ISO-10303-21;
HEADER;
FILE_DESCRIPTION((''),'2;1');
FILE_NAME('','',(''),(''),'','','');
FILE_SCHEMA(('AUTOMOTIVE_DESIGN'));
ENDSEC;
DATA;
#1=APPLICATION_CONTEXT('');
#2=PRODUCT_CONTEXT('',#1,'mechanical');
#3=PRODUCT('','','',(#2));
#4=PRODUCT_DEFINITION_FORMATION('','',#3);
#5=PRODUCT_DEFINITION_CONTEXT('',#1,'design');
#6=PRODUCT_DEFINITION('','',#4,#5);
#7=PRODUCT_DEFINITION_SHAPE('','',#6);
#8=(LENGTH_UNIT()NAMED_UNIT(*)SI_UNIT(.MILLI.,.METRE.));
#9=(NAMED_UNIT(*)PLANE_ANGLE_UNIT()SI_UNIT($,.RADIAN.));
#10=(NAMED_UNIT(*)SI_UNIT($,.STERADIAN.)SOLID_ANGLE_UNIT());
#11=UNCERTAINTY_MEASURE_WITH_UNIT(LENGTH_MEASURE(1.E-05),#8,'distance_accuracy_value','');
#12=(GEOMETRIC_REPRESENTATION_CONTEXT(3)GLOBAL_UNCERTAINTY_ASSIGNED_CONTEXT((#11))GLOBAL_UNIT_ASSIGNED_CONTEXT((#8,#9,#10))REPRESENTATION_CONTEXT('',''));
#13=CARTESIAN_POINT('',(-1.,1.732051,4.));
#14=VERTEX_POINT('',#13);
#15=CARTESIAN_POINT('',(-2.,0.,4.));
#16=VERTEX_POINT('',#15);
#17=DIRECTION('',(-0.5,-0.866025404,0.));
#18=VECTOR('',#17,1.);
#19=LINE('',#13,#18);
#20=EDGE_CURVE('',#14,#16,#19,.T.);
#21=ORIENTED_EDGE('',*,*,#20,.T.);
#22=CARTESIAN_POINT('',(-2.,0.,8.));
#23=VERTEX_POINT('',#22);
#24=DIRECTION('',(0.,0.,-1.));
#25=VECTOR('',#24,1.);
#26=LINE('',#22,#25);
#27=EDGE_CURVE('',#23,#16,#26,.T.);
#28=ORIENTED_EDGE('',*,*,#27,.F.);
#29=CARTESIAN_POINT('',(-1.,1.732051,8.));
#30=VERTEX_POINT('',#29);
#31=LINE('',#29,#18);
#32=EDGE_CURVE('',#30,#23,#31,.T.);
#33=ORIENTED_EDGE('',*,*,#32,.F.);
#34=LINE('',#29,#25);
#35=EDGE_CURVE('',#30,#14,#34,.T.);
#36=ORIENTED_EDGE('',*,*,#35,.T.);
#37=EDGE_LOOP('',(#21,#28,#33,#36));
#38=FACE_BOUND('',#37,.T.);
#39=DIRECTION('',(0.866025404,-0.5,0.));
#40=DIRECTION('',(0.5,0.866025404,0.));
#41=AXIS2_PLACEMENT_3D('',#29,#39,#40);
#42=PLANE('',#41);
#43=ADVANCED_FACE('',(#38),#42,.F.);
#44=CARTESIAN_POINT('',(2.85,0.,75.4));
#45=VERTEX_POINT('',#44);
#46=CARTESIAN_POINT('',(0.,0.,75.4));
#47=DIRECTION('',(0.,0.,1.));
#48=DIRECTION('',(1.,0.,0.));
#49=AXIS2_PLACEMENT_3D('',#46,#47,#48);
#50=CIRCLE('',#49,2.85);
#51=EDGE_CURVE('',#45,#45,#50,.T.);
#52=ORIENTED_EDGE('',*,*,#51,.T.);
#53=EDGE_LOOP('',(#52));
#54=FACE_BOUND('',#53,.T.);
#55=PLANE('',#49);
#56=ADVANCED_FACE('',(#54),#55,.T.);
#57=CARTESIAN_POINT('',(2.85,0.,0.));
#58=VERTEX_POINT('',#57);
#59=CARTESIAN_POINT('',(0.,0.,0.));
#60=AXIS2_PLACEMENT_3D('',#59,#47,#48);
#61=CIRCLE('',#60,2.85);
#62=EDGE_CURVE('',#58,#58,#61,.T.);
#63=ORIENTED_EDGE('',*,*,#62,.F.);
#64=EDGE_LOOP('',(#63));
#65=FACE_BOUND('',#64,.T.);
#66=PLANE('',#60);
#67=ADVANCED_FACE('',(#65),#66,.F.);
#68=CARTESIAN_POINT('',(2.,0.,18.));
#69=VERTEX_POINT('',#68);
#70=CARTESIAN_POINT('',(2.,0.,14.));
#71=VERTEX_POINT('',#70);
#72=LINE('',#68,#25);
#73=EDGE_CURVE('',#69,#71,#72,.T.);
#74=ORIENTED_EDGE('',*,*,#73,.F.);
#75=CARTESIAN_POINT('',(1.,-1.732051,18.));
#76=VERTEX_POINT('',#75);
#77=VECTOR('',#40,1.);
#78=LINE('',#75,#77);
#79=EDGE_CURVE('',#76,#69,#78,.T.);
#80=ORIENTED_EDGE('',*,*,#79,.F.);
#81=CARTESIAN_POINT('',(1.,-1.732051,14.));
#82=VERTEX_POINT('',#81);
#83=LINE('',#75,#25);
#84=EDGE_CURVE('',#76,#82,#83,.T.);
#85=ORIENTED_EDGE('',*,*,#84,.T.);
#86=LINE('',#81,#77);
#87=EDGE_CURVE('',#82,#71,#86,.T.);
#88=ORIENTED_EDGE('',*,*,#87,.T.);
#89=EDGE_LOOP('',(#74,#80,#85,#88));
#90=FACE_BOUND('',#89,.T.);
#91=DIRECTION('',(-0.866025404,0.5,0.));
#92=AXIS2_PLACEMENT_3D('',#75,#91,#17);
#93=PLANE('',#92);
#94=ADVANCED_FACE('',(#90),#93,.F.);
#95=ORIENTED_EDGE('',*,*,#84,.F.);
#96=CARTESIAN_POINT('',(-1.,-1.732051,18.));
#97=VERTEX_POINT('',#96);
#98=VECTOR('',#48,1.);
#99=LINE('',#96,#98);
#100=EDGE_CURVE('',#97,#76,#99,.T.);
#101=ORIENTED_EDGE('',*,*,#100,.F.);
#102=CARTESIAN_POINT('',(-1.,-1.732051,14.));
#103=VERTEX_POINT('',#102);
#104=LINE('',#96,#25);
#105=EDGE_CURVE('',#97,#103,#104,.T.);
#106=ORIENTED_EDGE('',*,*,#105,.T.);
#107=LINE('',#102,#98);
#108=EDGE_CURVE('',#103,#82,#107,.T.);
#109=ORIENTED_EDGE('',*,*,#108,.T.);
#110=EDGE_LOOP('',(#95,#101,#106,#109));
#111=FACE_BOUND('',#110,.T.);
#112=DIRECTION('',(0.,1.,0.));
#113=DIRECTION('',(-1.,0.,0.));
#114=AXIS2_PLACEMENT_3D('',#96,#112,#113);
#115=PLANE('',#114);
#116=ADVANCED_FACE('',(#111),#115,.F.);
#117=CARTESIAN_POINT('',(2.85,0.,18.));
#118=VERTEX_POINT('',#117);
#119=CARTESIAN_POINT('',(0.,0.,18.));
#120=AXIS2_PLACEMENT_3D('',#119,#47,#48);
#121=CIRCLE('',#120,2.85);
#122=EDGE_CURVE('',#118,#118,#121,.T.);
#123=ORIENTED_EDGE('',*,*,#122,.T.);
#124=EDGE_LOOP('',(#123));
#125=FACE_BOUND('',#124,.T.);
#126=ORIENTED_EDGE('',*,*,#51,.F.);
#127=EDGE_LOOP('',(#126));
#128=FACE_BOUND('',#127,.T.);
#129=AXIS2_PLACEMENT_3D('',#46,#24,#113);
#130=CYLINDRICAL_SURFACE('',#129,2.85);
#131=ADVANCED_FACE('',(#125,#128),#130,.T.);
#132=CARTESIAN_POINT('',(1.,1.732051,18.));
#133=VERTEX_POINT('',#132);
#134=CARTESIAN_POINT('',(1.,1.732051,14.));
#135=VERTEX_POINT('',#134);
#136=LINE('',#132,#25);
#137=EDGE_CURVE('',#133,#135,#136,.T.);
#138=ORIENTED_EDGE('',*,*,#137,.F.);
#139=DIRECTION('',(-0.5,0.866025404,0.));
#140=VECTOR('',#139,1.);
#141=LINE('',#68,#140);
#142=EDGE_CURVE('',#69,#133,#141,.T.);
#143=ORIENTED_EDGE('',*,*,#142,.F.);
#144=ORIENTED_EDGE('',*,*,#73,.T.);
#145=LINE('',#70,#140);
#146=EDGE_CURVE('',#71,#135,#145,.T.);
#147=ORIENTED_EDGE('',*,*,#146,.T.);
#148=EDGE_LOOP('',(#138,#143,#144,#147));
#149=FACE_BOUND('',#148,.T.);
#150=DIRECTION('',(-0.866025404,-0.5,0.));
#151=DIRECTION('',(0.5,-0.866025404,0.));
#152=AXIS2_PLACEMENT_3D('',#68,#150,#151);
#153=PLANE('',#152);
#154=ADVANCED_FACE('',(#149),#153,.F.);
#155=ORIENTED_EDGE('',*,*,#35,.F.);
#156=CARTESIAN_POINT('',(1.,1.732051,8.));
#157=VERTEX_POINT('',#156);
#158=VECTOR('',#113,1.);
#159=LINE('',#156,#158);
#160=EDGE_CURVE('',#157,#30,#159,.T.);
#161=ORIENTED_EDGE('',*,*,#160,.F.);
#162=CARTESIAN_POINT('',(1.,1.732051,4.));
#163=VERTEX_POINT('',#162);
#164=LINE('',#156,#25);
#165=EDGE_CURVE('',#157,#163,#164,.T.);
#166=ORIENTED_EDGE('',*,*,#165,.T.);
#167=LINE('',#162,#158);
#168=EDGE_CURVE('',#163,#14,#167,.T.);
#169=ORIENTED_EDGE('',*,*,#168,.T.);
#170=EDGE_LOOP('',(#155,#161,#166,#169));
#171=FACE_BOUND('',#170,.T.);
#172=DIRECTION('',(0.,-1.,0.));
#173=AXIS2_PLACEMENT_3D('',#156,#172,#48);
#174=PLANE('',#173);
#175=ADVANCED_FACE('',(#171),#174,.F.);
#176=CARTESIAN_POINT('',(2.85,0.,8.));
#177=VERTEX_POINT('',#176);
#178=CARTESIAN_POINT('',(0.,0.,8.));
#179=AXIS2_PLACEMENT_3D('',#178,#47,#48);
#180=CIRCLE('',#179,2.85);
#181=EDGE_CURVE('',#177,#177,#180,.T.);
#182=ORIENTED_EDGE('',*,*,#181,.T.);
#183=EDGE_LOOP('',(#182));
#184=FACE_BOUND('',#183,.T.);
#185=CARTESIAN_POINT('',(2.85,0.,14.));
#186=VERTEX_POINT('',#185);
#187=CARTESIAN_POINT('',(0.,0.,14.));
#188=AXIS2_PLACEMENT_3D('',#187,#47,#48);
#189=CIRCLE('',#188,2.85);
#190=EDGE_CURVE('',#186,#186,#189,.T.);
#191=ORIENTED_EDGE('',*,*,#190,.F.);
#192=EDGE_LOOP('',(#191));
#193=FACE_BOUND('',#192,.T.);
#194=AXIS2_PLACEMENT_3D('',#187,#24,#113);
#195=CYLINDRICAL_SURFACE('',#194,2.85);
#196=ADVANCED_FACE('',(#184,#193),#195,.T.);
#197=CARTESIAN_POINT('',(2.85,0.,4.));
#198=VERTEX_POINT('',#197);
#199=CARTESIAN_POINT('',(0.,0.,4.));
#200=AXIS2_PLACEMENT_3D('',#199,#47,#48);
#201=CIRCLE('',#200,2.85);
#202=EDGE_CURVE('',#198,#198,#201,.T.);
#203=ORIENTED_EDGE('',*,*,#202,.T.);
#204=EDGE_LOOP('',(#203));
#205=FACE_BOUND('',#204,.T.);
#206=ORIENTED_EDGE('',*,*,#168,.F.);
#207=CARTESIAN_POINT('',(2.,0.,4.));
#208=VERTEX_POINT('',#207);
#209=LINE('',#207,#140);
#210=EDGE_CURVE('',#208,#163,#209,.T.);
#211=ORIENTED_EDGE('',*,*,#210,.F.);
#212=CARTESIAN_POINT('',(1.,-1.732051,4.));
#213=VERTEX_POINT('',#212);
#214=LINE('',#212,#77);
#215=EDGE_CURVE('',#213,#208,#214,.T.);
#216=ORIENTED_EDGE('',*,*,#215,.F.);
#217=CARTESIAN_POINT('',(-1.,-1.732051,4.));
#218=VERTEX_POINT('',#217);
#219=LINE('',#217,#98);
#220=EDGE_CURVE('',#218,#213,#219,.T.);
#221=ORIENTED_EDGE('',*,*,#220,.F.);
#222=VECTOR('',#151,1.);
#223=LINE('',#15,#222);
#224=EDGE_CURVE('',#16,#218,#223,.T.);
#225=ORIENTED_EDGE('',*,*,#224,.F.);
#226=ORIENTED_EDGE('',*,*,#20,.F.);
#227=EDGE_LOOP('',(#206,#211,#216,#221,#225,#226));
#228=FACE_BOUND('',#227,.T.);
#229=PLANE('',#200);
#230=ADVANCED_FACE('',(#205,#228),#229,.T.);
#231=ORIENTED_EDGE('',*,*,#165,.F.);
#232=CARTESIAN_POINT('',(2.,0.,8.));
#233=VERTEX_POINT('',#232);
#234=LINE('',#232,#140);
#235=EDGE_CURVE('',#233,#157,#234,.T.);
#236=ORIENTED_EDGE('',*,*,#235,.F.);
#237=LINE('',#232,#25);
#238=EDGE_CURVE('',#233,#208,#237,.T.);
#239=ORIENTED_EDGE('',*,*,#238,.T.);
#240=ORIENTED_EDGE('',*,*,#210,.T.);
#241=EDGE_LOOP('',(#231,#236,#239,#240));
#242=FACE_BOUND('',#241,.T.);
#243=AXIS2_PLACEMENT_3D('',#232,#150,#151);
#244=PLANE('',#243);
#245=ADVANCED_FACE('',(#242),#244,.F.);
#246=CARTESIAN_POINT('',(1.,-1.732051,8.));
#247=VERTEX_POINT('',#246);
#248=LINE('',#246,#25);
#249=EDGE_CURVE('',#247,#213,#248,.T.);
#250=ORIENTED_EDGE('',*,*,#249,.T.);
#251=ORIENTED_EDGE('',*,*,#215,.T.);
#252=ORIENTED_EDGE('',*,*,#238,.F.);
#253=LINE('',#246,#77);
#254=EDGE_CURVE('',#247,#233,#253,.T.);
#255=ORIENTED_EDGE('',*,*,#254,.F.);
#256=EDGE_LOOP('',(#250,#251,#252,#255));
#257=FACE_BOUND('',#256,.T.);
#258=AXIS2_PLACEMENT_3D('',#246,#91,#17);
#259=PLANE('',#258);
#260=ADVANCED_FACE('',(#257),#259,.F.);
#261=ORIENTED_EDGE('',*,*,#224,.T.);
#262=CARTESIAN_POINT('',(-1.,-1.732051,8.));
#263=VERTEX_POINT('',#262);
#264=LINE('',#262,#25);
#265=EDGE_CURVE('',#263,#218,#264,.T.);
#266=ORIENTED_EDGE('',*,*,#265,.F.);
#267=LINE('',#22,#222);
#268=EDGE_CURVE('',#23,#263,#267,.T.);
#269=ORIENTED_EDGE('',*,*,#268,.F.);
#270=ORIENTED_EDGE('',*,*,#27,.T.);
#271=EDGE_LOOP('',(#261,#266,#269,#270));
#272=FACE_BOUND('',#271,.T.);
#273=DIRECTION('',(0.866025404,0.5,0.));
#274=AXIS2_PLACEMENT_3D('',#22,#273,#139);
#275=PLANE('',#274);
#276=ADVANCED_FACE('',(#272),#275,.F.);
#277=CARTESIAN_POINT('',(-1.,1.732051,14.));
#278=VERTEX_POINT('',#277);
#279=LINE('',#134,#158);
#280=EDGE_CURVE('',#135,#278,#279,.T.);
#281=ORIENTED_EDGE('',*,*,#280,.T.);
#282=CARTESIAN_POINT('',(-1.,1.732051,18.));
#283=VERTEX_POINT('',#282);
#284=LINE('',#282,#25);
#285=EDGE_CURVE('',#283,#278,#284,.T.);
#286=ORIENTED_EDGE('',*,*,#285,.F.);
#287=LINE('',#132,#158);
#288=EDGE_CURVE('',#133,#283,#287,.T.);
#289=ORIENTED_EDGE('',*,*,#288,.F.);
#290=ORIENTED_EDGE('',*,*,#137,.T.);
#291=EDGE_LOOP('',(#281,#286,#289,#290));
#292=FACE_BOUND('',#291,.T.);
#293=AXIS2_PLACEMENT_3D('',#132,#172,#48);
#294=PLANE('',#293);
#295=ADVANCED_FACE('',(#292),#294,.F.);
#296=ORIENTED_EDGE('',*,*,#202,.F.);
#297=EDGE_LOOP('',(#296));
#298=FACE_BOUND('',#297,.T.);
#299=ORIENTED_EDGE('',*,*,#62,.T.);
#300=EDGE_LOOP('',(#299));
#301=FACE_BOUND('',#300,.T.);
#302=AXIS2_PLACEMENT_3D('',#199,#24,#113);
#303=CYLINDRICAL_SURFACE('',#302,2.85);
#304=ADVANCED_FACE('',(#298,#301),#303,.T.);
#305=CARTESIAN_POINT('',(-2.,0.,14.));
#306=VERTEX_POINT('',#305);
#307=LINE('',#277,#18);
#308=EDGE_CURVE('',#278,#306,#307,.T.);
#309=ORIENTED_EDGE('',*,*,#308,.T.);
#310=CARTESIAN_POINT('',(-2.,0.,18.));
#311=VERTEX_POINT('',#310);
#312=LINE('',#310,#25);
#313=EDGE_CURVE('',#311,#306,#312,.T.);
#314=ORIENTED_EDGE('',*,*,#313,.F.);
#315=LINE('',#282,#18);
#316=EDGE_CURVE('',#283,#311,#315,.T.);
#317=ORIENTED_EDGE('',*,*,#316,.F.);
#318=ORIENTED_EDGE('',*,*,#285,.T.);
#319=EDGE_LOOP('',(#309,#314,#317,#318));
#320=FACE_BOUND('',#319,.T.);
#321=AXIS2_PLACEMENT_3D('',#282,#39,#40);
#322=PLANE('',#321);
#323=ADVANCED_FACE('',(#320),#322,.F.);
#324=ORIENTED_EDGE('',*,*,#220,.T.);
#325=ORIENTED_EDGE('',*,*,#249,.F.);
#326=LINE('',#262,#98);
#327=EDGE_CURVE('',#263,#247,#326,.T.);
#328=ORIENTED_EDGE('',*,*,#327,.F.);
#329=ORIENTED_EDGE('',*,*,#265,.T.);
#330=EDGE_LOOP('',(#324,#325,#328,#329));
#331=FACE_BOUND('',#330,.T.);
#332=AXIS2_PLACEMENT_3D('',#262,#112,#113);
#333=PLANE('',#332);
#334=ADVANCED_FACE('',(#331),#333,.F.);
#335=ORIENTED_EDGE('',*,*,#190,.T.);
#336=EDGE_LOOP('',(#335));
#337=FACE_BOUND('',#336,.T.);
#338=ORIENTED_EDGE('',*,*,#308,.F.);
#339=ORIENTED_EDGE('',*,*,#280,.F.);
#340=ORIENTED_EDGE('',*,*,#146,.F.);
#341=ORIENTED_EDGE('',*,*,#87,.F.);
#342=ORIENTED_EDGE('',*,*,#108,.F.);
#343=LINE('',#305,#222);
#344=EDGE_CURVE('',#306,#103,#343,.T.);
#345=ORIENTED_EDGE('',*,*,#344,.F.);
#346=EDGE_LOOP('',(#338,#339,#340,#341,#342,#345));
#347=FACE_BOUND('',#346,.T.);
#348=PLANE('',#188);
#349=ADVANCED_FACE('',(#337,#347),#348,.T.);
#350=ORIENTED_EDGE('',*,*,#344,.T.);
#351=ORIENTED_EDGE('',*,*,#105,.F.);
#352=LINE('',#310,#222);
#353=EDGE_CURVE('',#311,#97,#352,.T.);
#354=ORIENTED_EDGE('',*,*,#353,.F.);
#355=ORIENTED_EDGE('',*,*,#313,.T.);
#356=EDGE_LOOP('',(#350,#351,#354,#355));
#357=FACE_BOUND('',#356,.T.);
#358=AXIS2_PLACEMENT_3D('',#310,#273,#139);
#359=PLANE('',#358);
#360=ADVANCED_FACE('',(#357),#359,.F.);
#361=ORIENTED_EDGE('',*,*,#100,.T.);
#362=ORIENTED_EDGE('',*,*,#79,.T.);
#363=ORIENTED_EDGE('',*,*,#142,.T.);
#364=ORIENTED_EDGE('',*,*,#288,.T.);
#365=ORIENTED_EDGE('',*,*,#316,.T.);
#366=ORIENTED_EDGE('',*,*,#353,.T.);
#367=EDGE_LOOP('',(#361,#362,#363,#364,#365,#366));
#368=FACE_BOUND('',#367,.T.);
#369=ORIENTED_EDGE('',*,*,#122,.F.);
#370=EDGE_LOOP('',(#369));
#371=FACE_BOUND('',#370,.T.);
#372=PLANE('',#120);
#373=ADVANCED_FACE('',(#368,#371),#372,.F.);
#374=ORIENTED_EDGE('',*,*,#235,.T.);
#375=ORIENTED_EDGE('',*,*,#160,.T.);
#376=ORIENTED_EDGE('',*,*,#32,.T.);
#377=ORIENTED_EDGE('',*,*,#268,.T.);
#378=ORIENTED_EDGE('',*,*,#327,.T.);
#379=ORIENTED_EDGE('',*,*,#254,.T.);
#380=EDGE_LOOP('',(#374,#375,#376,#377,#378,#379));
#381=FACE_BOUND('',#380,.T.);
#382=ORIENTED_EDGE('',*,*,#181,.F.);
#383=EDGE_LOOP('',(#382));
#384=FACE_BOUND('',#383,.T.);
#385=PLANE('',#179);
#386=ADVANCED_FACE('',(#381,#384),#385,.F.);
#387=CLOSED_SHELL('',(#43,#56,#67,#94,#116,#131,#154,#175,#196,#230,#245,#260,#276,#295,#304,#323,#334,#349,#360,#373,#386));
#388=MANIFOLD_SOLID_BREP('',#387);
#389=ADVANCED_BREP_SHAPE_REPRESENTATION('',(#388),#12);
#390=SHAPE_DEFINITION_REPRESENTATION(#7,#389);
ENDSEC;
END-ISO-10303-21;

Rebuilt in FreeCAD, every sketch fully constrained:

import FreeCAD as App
import Part
import Sketcher
Q = App.Units.Quantity

doc = App.newDocument("Part")
body = doc.addObject("PartDesign::Body", "Body")

# Sketch on XY plane
sketch1 = body.newObject("Sketcher::SketchObject", "Sketch")
sketch1.AttachmentSupport = (doc.getObject("XY_Plane"), [""])
sketch1.MapMode = "FlatFace"
sketch1.addGeometry(Part.Circle(App.Vector(0, 0, 0), App.Vector(0, 0, 1), 2.9), False)
sketch1.addConstraint(Sketcher.Constraint("Coincident", 0, 3, -1, 1))
sketch1.addConstraint(Sketcher.Constraint("Diameter", 0, Q("5.7 mm")))
pad1 = body.newObject("PartDesign::Pad", "Pad")
pad1.Profile = sketch1
pad1.Length = 4

# Sketch on XY plane
sketch2 = body.newObject("Sketcher::SketchObject", "Sketch001")
sketch2.AttachmentSupport = (doc.getObject("XY_Plane"), [""])
sketch2.MapMode = "FlatFace"
sketch2.AttachmentOffset = App.Placement(App.Vector(0, 0, 4), App.Rotation())
sketch2.addGeometry(Part.LineSegment(App.Vector(2, 0, 0), App.Vector(1, 1.7, 0)), False)
sketch2.addGeometry(Part.LineSegment(App.Vector(1, 1.7, 0), App.Vector(-1, 1.7, 0)), False)
sketch2.addGeometry(Part.LineSegment(App.Vector(-1, 1.7, 0), App.Vector(-2, 0, 0)), False)
sketch2.addGeometry(Part.LineSegment(App.Vector(-2, 0, 0), App.Vector(-1, -1.7, 0)), False)
sketch2.addGeometry(Part.LineSegment(App.Vector(-1, -1.7, 0), App.Vector(1, -1.7, 0)), False)
sketch2.addGeometry(Part.LineSegment(App.Vector(1, -1.7, 0), App.Vector(2, 0, 0)), False)
sketch2.addConstraint(Sketcher.Constraint("Coincident", 0, 2, 1, 1))
sketch2.addConstraint(Sketcher.Constraint("Coincident", 1, 2, 2, 1))
sketch2.addConstraint(Sketcher.Constraint("Coincident", 2, 2, 3, 1))
sketch2.addConstraint(Sketcher.Constraint("Coincident", 3, 2, 4, 1))
sketch2.addConstraint(Sketcher.Constraint("Coincident", 4, 2, 5, 1))
sketch2.addConstraint(Sketcher.Constraint("Coincident", 5, 2, 0, 1))
sketch2.addConstraint(Sketcher.Constraint("Horizontal", 1))
sketch2.addConstraint(Sketcher.Constraint("Horizontal", 4))
sketch2.addConstraint(Sketcher.Constraint("Symmetric", 0, 2, 3, 2, -1, 1))
sketch2.addConstraint(Sketcher.Constraint("Symmetric", 2, 2, 5, 2, -1, 1))
sketch2.addConstraint(Sketcher.Constraint("PointOnObject", 2, 2, -1))
sketch2.addConstraint(Sketcher.Constraint("Parallel", 2, 5))
sketch2.addConstraint(Sketcher.Constraint("Vertical", 1, 2, 3, 2))
sketch2.addConstraint(Sketcher.Constraint("DistanceX", 1, 2, 1, 1, Q("2 mm")))
sketch2.addConstraint(Sketcher.Constraint("Angle", 0, Q("120 deg")))
sketch2.addConstraint(Sketcher.Constraint("Distance", 0, Q("2 mm")))
pad2 = body.newObject("PartDesign::Pad", "Pad001")
pad2.Profile = sketch2
pad2.Length = 4

# Sketch on XY plane
sketch3 = body.newObject("Sketcher::SketchObject", "Sketch002")
sketch3.AttachmentSupport = (doc.getObject("XY_Plane"), [""])
sketch3.MapMode = "FlatFace"
sketch3.AttachmentOffset = App.Placement(App.Vector(0, 0, 8), App.Rotation())
sketch3.addGeometry(Part.Circle(App.Vector(0, 0, 0), App.Vector(0, 0, 1), 2.9), False)
sketch3.addConstraint(Sketcher.Constraint("Coincident", 0, 3, -1, 1))
sketch3.addConstraint(Sketcher.Constraint("Diameter", 0, Q("5.7 mm")))
pad3 = body.newObject("PartDesign::Pad", "Pad002")
pad3.Profile = sketch3
pad3.Length = 6

# Sketch on XY plane
sketch4 = body.newObject("Sketcher::SketchObject", "Sketch003")
sketch4.AttachmentSupport = (doc.getObject("XY_Plane"), [""])
sketch4.MapMode = "FlatFace"
sketch4.AttachmentOffset = App.Placement(App.Vector(0, 0, 14), App.Rotation())
sketch4.addGeometry(Part.LineSegment(App.Vector(2, 0, 0), App.Vector(1, 1.7, 0)), False)
sketch4.addGeometry(Part.LineSegment(App.Vector(1, 1.7, 0), App.Vector(-1, 1.7, 0)), False)
sketch4.addGeometry(Part.LineSegment(App.Vector(-1, 1.7, 0), App.Vector(-2, 0, 0)), False)
sketch4.addGeometry(Part.LineSegment(App.Vector(-2, 0, 0), App.Vector(-1, -1.7, 0)), False)
sketch4.addGeometry(Part.LineSegment(App.Vector(-1, -1.7, 0), App.Vector(1, -1.7, 0)), False)
sketch4.addGeometry(Part.LineSegment(App.Vector(1, -1.7, 0), App.Vector(2, 0, 0)), False)
sketch4.addConstraint(Sketcher.Constraint("Coincident", 0, 2, 1, 1))
sketch4.addConstraint(Sketcher.Constraint("Coincident", 1, 2, 2, 1))
sketch4.addConstraint(Sketcher.Constraint("Coincident", 2, 2, 3, 1))
sketch4.addConstraint(Sketcher.Constraint("Coincident", 3, 2, 4, 1))
sketch4.addConstraint(Sketcher.Constraint("Coincident", 4, 2, 5, 1))
sketch4.addConstraint(Sketcher.Constraint("Coincident", 5, 2, 0, 1))
sketch4.addConstraint(Sketcher.Constraint("Horizontal", 1))
sketch4.addConstraint(Sketcher.Constraint("Horizontal", 4))
sketch4.addConstraint(Sketcher.Constraint("Symmetric", 0, 2, 3, 2, -1, 1))
sketch4.addConstraint(Sketcher.Constraint("Symmetric", 2, 2, 5, 2, -1, 1))
sketch4.addConstraint(Sketcher.Constraint("PointOnObject", 2, 2, -1))
sketch4.addConstraint(Sketcher.Constraint("Parallel", 2, 5))
sketch4.addConstraint(Sketcher.Constraint("Vertical", 1, 2, 3, 2))
sketch4.addConstraint(Sketcher.Constraint("DistanceX", 1, 2, 1, 1, Q("2 mm")))
sketch4.addConstraint(Sketcher.Constraint("Angle", 0, Q("120 deg")))
sketch4.addConstraint(Sketcher.Constraint("Distance", 0, Q("2 mm")))
pad4 = body.newObject("PartDesign::Pad", "Pad003")
pad4.Profile = sketch4
pad4.Length = 4

# Sketch on XY plane
sketch5 = body.newObject("Sketcher::SketchObject", "Sketch004")
sketch5.AttachmentSupport = (doc.getObject("XY_Plane"), [""])
sketch5.MapMode = "FlatFace"
sketch5.AttachmentOffset = App.Placement(App.Vector(0, 0, 18), App.Rotation())
sketch5.addGeometry(Part.Circle(App.Vector(0, 0, 0), App.Vector(0, 0, 1), 2.9), False)
sketch5.addConstraint(Sketcher.Constraint("Coincident", 0, 3, -1, 1))
sketch5.addConstraint(Sketcher.Constraint("Diameter", 0, Q("5.7 mm")))
pad5 = body.newObject("PartDesign::Pad", "Pad004")
pad5.Profile = sketch5
pad5.Length = 57.4

doc.recompute()
